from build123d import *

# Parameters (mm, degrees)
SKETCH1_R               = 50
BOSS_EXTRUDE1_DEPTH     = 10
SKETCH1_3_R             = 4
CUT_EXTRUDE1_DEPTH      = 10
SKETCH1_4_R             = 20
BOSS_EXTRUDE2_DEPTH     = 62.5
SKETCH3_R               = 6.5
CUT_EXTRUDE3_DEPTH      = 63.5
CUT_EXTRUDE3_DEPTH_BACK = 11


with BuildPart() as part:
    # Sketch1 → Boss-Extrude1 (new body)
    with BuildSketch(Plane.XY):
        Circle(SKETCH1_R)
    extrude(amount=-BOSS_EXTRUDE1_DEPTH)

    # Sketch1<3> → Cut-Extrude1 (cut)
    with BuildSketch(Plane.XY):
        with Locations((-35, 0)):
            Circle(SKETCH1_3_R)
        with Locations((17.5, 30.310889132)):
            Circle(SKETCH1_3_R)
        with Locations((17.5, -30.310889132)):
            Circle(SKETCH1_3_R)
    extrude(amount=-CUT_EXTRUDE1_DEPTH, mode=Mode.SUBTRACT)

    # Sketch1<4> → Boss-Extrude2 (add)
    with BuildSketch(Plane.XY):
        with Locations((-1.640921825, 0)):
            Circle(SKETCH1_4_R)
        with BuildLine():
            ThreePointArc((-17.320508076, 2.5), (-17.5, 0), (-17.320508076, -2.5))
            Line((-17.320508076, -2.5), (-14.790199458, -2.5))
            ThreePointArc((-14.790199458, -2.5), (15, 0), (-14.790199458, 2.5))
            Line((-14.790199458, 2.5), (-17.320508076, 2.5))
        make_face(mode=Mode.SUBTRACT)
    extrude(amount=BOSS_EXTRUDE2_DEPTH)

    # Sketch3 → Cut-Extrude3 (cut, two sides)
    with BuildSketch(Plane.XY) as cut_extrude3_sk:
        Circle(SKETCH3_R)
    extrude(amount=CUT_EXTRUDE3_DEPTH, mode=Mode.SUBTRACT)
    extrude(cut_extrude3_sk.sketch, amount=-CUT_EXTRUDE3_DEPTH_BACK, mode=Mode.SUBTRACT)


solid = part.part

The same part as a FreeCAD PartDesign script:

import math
import FreeCAD as App
import Part
import Sketcher
Q = App.Units.Quantity

doc = App.newDocument("Part")
body = doc.addObject("PartDesign::Body", "Body")

sketch1 = body.newObject("Sketcher::SketchObject", "Sketch")
sketch1.AttachmentSupport = (doc.getObject("XY_Plane"), [""])
sketch1.MapMode = "FlatFace"
sketch1.addGeometry(Part.Circle(App.Vector(0, 0, 0), App.Vector(0, 0, 1), 50), False)
sketch1.addConstraint([
    Sketcher.Constraint("Coincident", 0, 3, -1, 1),
    Sketcher.Constraint("Diameter", 0, Q("100 mm")),
])
pad1 = body.newObject("PartDesign::Pad", "Pad")
pad1.Profile = sketch1
pad1.Length = 10
pad1.Reversed = True

sketch2 = body.newObject("Sketcher::SketchObject", "Sketch001")
sketch2.AttachmentSupport = (doc.getObject("XY_Plane"), [""])
sketch2.MapMode = "FlatFace"
sketch2.addGeometry([
    Part.Circle(App.Vector(-35, 0, 0), App.Vector(0, 0, 1), 4),
    Part.Circle(App.Vector(17.5, 30.3, 0), App.Vector(0, 0, 1), 4),
    Part.Circle(App.Vector(17.5, -30.3, 0), App.Vector(0, 0, 1), 4),
], False)
sketch2.addConstraint([
    Sketcher.Constraint("Equal", 0, 1),
    Sketcher.Constraint("Equal", 1, 2),
    Sketcher.Constraint("Symmetric", 1, 3, 2, 3, -1),
    Sketcher.Constraint("PointOnObject", 0, 3, -1),
    Sketcher.Constraint("Diameter", 0, Q("8 mm")),
    Sketcher.Constraint("DistanceX", 0, 3, -1, 1, Q("35 mm")),
    Sketcher.Constraint("DistanceX", -1, 1, 1, 3, Q("17.5 mm")),
    Sketcher.Constraint("DistanceY", -1, 1, 1, 3, Q("30.310889 mm")),
])
pocket1 = body.newObject("PartDesign::Pocket", "Pocket")
pocket1.Profile = sketch2
pocket1.Length = 10

sketch3 = body.newObject("Sketcher::SketchObject", "Sketch002")
sketch3.AttachmentSupport = (doc.getObject("XY_Plane"), [""])
sketch3.MapMode = "FlatFace"
sketch3.addGeometry([
    Part.Circle(App.Vector(-1.6, 0, 0), App.Vector(0, 0, 1), 20),
    Part.ArcOfCircle(Part.Circle(App.Vector(0, 0, 0), App.Vector(0, 0, 1), 17.5), math.radians(171.79), math.radians(188.21)),
    Part.LineSegment(App.Vector(-17.3, 2.5, 0), App.Vector(-14.8, 2.5, 0)),
    Part.ArcOfCircle(Part.Circle(App.Vector(0, 0, 0), App.Vector(0, 0, 1), 15), math.radians(-170), math.radians(170)),
    Part.LineSegment(App.Vector(-14.8, -2.5, 0), App.Vector(-17.3, -2.5, 0)),
], False)
sketch3.addConstraint([
    Sketcher.Constraint("Coincident", 1, 1, 2, 1),
    Sketcher.Constraint("Coincident", 2, 2, 3, 2),
    Sketcher.Constraint("Coincident", 3, 1, 4, 1),
    Sketcher.Constraint("Coincident", 4, 2, 1, 2),
    Sketcher.Constraint("Horizontal", 2),
    Sketcher.Constraint("Horizontal", 4),
    Sketcher.Constraint("Coincident", 1, 3, -1, 1),
    Sketcher.Constraint("Coincident", 3, 3, -1, 1),
    Sketcher.Constraint("PointOnObject", 0, 3, -1),
    Sketcher.Constraint("Vertical", 2, 2, 3, 1),
    Sketcher.Constraint("Diameter", 0, Q("40 mm")),
    Sketcher.Constraint("Radius", 3, Q("15 mm")),
    Sketcher.Constraint("Radius", 1, Q("17.5 mm")),
    Sketcher.Constraint("DistanceY", 3, 1, 2, 2, Q("5 mm")),
    Sketcher.Constraint("DistanceX", 0, 3, -1, 1, Q("1.640922 mm")),
])
pad2 = body.newObject("PartDesign::Pad", "Pad001")
pad2.Profile = sketch3
pad2.Length = 62.5

sketch4 = body.newObject("Sketcher::SketchObject", "Sketch003")
sketch4.AttachmentSupport = (doc.getObject("XY_Plane"), [""])
sketch4.MapMode = "FlatFace"
sketch4.addGeometry(Part.Circle(App.Vector(0, 0, 0), App.Vector(0, 0, 1), 6), False)
sketch4.addConstraint([
    Sketcher.Constraint("Coincident", 0, 3, -1, 1),
    Sketcher.Constraint("Diameter", 0, Q("13 mm")),
])
pocket2 = body.newObject("PartDesign::Pocket", "Pocket001")
pocket2.Profile = sketch4
pocket2.Type = "ThroughAll"
pocket2.Midplane = True

doc.recompute()
